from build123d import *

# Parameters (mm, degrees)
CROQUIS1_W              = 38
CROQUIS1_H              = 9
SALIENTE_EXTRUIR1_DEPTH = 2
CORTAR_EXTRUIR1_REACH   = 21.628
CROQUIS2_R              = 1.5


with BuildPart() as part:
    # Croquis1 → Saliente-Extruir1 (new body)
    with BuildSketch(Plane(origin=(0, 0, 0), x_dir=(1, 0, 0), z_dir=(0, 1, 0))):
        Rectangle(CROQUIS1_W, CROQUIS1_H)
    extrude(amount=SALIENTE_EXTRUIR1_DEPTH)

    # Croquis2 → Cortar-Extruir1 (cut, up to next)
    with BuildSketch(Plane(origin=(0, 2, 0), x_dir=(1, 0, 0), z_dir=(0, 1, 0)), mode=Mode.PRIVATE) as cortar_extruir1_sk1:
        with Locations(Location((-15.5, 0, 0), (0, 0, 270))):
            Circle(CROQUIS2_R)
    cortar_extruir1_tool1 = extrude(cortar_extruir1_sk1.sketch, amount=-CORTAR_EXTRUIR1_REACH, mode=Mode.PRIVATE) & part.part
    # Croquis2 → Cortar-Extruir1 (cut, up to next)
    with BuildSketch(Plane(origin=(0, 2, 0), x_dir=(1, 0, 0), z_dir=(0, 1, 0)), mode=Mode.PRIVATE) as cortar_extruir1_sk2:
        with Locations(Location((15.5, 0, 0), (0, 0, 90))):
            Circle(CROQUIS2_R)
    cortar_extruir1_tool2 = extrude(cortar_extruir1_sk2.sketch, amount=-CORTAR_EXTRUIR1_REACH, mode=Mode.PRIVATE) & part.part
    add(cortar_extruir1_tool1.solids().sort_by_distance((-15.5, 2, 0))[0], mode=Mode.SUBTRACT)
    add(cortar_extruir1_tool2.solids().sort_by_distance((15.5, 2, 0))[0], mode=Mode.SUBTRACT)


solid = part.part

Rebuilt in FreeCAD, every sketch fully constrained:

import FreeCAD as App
import Part
import Sketcher
from FreeCAD import Vector
Q = App.Units.Quantity

doc = App.newDocument("Part")
body = doc.addObject("PartDesign::Body", "Body")

# Sketch on XZ plane
sketch1 = doc.addObject("Sketcher::SketchObject", "Sketch")
body.addObject(sketch1)
sketch1.AttachmentSupport = (doc.XZ_Plane, [""])
sketch1.MapMode = "FlatFace"
sketch1.addGeometry(Part.LineSegment(Vector(-19, -4, 0), Vector(-19, 4, 0)), False)
sketch1.addGeometry(Part.LineSegment(Vector(-19, 4, 0), Vector(19, 4, 0)), False)
sketch1.addGeometry(Part.LineSegment(Vector(19, 4, 0), Vector(19, -4, 0)), False)
sketch1.addGeometry(Part.LineSegment(Vector(19, -4, 0), Vector(-19, -4, 0)), False)
sketch1.addConstraint(Sketcher.Constraint("Coincident", 0, 2, 1, 1))
sketch1.addConstraint(Sketcher.Constraint("Coincident", 1, 2, 2, 1))
sketch1.addConstraint(Sketcher.Constraint("Coincident", 2, 2, 3, 1))
sketch1.addConstraint(Sketcher.Constraint("Coincident", 3, 2, 0, 1))
sketch1.addConstraint(Sketcher.Constraint("Vertical", 0))
sketch1.addConstraint(Sketcher.Constraint("Horizontal", 1))
sketch1.addConstraint(Sketcher.Constraint("Vertical", 2))
sketch1.addConstraint(Sketcher.Constraint("Horizontal", 3))
sketch1.addConstraint(Sketcher.Constraint("Symmetric", 0, 2, 2, 2, -1, 1))
sketch1.addConstraint(Sketcher.Constraint("DistanceX", 1, 1, 1, 2, Q("38 mm")))
sketch1.addConstraint(Sketcher.Constraint("DistanceY", 0, 1, 0, 2, Q("9 mm")))
pad1 = doc.addObject("PartDesign::Pad", "Pad")
body.addObject(pad1)
pad1.Profile = sketch1
pad1.Length = 2
pad1.Reversed = True

# Sketch on XZ plane
sketch2 = doc.addObject("Sketcher::SketchObject", "Sketch001")
body.addObject(sketch2)
sketch2.AttachmentSupport = (doc.XZ_Plane, [""])
sketch2.MapMode = "FlatFace"
sketch2.AttachmentOffset = App.Placement(Vector(0, 0, -2), App.Rotation())
sketch2.addGeometry(Part.Circle(Vector(-15.5, 0, 0), Vector(0, 0, 1), 1.5), False)
sketch2.addConstraint(Sketcher.Constraint("PointOnObject", 0, 3, -1))
sketch2.addConstraint(Sketcher.Constraint("Diameter", 0, Q("3 mm")))
sketch2.addConstraint(Sketcher.Constraint("DistanceX", 0, 3, -1, 1, Q("15.5 mm")))
pocket1 = doc.addObject("PartDesign::Pocket", "Pocket")
body.addObject(pocket1)
pocket1.Profile = sketch2
pocket1.Type = "UpToFirst"
pocket1.Reversed = True

# Sketch on XZ plane
sketch3 = doc.addObject("Sketcher::SketchObject", "Sketch002")
body.addObject(sketch3)
sketch3.AttachmentSupport = (doc.XZ_Plane, [""])
sketch3.MapMode = "FlatFace"
sketch3.AttachmentOffset = App.Placement(Vector(0, 0, -2), App.Rotation())
sketch3.addGeometry(Part.Circle(Vector(15.5, 0, 0), Vector(0, 0, 1), 1.5), False)
sketch3.addConstraint(Sketcher.Constraint("PointOnObject", 0, 3, -1))
sketch3.addConstraint(Sketcher.Constraint("Diameter", 0, Q("3 mm")))
sketch3.addConstraint(Sketcher.Constraint("DistanceX", -1, 1, 0, 3, Q("15.5 mm")))
pocket2 = doc.addObject("PartDesign::Pocket", "Pocket001")
body.addObject(pocket2)
pocket2.Profile = sketch3
pocket2.Type = "UpToFirst"
pocket2.Reversed = True

doc.recompute()
